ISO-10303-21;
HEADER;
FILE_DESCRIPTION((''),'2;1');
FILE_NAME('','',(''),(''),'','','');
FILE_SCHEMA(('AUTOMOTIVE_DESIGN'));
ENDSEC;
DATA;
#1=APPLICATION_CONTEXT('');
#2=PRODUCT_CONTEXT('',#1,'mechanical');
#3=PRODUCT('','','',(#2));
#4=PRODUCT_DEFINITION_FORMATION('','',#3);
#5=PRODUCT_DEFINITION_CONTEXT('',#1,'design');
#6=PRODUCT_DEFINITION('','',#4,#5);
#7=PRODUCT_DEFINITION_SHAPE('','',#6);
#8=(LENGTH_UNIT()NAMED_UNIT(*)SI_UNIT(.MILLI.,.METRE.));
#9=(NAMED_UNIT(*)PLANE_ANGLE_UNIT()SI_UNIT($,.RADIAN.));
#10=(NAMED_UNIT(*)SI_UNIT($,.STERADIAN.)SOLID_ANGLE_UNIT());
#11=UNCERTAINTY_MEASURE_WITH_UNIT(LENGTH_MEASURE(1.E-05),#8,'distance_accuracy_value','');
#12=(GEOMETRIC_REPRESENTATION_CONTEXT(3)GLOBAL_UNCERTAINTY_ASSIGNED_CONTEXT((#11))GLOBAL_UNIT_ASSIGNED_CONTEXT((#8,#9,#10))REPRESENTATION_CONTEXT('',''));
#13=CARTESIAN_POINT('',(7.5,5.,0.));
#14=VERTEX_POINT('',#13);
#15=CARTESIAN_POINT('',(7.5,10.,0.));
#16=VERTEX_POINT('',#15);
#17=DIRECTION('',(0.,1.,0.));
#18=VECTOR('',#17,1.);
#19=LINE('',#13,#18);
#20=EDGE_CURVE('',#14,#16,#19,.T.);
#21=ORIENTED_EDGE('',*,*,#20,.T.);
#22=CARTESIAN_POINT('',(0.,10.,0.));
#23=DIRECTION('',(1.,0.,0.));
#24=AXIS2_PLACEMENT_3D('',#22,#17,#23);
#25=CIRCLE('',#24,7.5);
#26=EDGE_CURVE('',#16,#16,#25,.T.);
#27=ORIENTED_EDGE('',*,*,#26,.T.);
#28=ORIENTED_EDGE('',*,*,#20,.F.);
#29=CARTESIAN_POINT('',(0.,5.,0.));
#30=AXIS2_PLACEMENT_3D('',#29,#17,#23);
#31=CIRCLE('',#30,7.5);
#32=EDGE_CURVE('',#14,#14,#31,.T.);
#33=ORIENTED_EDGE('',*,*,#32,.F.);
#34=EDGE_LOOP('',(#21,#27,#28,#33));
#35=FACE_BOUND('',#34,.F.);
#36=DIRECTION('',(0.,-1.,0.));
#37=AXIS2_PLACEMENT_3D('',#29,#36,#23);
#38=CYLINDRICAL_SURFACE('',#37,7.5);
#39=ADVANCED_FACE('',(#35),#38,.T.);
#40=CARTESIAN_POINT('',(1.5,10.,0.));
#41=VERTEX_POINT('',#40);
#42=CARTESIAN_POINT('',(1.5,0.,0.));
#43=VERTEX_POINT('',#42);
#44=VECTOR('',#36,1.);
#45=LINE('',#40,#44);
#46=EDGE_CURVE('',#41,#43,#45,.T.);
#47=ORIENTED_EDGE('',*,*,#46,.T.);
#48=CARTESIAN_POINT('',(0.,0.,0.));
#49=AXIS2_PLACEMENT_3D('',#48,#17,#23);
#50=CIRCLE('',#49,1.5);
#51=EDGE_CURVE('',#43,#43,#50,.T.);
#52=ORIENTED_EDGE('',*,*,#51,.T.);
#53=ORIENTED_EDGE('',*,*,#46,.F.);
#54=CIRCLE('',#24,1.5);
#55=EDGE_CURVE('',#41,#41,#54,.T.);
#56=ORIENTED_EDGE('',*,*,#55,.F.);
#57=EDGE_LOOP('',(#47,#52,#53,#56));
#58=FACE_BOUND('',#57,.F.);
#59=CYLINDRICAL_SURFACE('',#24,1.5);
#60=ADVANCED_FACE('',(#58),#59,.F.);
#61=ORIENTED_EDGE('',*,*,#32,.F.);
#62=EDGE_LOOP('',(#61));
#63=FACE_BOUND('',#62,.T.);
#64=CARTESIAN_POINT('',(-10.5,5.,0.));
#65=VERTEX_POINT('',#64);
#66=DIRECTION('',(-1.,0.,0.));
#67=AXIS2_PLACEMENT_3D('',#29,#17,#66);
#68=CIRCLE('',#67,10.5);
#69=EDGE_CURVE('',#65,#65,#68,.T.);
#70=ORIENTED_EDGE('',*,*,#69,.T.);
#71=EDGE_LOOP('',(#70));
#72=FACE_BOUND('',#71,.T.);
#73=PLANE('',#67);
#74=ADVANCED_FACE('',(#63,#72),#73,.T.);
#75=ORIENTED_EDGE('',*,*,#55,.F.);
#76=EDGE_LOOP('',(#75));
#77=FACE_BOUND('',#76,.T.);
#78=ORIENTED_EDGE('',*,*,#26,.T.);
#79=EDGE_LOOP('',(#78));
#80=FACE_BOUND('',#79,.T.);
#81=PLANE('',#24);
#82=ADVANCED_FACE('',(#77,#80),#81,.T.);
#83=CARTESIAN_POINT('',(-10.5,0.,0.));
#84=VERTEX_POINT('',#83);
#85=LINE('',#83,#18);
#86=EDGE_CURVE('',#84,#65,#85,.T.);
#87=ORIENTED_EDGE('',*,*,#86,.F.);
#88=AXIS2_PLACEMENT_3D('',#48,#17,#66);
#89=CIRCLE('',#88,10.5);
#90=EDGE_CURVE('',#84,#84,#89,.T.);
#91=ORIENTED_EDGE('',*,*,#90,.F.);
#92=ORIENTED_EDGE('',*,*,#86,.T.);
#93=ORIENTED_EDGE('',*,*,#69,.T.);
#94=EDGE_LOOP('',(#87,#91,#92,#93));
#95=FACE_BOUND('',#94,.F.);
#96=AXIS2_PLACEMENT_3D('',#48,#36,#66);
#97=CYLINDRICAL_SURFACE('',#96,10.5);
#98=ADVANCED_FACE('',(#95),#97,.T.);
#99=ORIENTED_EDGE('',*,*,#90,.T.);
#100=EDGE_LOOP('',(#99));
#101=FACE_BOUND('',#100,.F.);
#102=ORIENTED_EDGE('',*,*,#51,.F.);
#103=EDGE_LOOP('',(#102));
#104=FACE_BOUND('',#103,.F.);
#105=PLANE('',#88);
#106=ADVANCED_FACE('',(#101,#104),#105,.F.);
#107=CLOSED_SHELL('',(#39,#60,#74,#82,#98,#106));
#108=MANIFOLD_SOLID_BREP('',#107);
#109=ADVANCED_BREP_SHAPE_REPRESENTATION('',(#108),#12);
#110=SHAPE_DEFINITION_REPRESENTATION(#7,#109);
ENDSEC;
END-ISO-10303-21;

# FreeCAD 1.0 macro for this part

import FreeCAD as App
import Part
import Sketcher

V = App.Vector

doc = App.newDocument("Part")
params = doc.addObject("Spreadsheet::Sheet", "Params")
for row, (alias, value) in enumerate([
    ("sketch1_diameter", "21 mm"),
    ("pad1_length", "5 mm"),
    ("sketch2_diameter", "15 mm"),
    ("pad2_length", "5 mm"),
    ("sketch3_diameter", "3 mm"),
], start=1):
    params.set(f"A{row}", alias)
    params.set(f"B{row}", "=" + value)
    params.setAlias(f"B{row}", alias)

body = doc.addObject("PartDesign::Body", "Body")

sketch1 = body.newObject("Sketcher::SketchObject", "Sketch")
sketch1.AttachmentSupport = (doc.getObject("XZ_Plane"), [""])
sketch1.MapMode = "FlatFace"
sketch1.addGeometry(Part.Circle(V(0, 0, 0), V(0, 0, 1), 10), False)
sketch1.addConstraint([
    Sketcher.Constraint("Coincident", 0, 3, -1, 1),
    Sketcher.Constraint("Diameter", 0, 21.0),
])
sketch1.setExpression("Constraints[1]", "Params.sketch1_diameter")
pad1 = body.newObject("PartDesign::Pad", "Pad")
pad1.Profile = sketch1
pad1.setExpression("Length", "Params.pad1_length")
pad1.Reversed = True

sketch2 = body.newObject("Sketcher::SketchObject", "Sketch001")
sketch2.AttachmentSupport = (doc.getObject("XZ_Plane"), [""])
sketch2.MapMode = "FlatFace"
sketch2.AttachmentOffset = App.Placement(V(0, 0, -5), App.Rotation())
sketch2.addGeometry(Part.Circle(V(0, 0, 0), V(0, 0, 1), 8), False)
sketch2.addConstraint([
    Sketcher.Constraint("Coincident", 0, 3, -1, 1),
    Sketcher.Constraint("Diameter", 0, 15.0),
])
sketch2.setExpression("Constraints[1]", "Params.sketch2_diameter")
pad2 = body.newObject("PartDesign::Pad", "Pad001")
pad2.Profile = sketch2
pad2.setExpression("Length", "Params.pad2_length")
pad2.Reversed = True

sketch3 = body.newObject("Sketcher::SketchObject", "Sketch002")
sketch3.AttachmentSupport = (doc.getObject("XZ_Plane"), [""])
sketch3.MapMode = "FlatFace"
sketch3.AttachmentOffset = App.Placement(V(0, 0, -10), App.Rotation())
sketch3.addGeometry(Part.Circle(V(0, 0, 0), V(0, 0, 1), 1.5), False)
sketch3.addConstraint([
    Sketcher.Constraint("Coincident", 0, 3, -1, 1),
    Sketcher.Constraint("Diameter", 0, 3.0),
])
sketch3.setExpression("Constraints[1]", "Params.sketch3_diameter")
pocket1 = body.newObject("PartDesign::Pocket", "Pocket")
pocket1.Profile = sketch3
pocket1.Type = "ThroughAll"
pocket1.Reversed = True

doc.recompute()
